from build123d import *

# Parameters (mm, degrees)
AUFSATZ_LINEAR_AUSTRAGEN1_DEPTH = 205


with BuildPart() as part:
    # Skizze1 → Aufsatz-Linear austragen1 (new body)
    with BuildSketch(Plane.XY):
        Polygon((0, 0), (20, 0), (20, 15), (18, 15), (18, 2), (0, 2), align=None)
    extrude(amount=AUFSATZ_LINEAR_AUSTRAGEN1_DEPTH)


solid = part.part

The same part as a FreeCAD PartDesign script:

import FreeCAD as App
import Part
import Sketcher

V = App.Vector
Q = App.Units.Quantity

doc = App.newDocument("Part")
body = doc.addObject("PartDesign::Body", "Body")

# Sketch on XY plane
sketch1 = body.newObject("Sketcher::SketchObject", "Sketch")
sketch1.AttachmentSupport = (doc.getObject("XY_Plane"), [""])
sketch1.MapMode = "FlatFace"
sketch1.addGeometry(Part.LineSegment(V(0, 0, 0), V(20, 0, 0)), False)
sketch1.addGeometry(Part.LineSegment(V(20, 0, 0), V(20, 15, 0)), False)
sketch1.addGeometry(Part.LineSegment(V(20, 15, 0), V(18, 15, 0)), False)
sketch1.addGeometry(Part.LineSegment(V(18, 15, 0), V(18, 2, 0)), False)
sketch1.addGeometry(Part.LineSegment(V(18, 2, 0), V(0, 2, 0)), False)
sketch1.addGeometry(Part.LineSegment(V(0, 2, 0), V(0, 0, 0)), False)
sketch1.addConstraint(Sketcher.Constraint("Coincident", 0, 2, 1, 1))
sketch1.addConstraint(Sketcher.Constraint("Coincident", 1, 2, 2, 1))
sketch1.addConstraint(Sketcher.Constraint("Coincident", 2, 2, 3, 1))
sketch1.addConstraint(Sketcher.Constraint("Coincident", 3, 2, 4, 1))
sketch1.addConstraint(Sketcher.Constraint("Coincident", 4, 2, 5, 1))
sketch1.addConstraint(Sketcher.Constraint("Coincident", 5, 2, 0, 1))
sketch1.addConstraint(Sketcher.Constraint("Horizontal", 0))
sketch1.addConstraint(Sketcher.Constraint("Vertical", 1))
sketch1.addConstraint(Sketcher.Constraint("Horizontal", 2))
sketch1.addConstraint(Sketcher.Constraint("Vertical", 3))
sketch1.addConstraint(Sketcher.Constraint("Horizontal", 4))
sketch1.addConstraint(Sketcher.Constraint("Vertical", 5))
sketch1.addConstraint(Sketcher.Constraint("Coincident", 5, 2, -1, 1))
sketch1.addConstraint(Sketcher.Constraint("Equal", 2, 5))
sketch1.addConstraint(Sketcher.Constraint("DistanceX", 0, 1, 0, 2, Q("20 mm")))
sketch1.addConstraint(Sketcher.Constraint("DistanceX", 2, 2, 2, 1, Q("2 mm")))
sketch1.addConstraint(Sketcher.Constraint("DistanceY", 1, 1, 1, 2, Q("15 mm")))
pad1 = body.newObject("PartDesign::Pad", "Pad")
pad1.Profile = sketch1
pad1.Length = 205

doc.recompute()
